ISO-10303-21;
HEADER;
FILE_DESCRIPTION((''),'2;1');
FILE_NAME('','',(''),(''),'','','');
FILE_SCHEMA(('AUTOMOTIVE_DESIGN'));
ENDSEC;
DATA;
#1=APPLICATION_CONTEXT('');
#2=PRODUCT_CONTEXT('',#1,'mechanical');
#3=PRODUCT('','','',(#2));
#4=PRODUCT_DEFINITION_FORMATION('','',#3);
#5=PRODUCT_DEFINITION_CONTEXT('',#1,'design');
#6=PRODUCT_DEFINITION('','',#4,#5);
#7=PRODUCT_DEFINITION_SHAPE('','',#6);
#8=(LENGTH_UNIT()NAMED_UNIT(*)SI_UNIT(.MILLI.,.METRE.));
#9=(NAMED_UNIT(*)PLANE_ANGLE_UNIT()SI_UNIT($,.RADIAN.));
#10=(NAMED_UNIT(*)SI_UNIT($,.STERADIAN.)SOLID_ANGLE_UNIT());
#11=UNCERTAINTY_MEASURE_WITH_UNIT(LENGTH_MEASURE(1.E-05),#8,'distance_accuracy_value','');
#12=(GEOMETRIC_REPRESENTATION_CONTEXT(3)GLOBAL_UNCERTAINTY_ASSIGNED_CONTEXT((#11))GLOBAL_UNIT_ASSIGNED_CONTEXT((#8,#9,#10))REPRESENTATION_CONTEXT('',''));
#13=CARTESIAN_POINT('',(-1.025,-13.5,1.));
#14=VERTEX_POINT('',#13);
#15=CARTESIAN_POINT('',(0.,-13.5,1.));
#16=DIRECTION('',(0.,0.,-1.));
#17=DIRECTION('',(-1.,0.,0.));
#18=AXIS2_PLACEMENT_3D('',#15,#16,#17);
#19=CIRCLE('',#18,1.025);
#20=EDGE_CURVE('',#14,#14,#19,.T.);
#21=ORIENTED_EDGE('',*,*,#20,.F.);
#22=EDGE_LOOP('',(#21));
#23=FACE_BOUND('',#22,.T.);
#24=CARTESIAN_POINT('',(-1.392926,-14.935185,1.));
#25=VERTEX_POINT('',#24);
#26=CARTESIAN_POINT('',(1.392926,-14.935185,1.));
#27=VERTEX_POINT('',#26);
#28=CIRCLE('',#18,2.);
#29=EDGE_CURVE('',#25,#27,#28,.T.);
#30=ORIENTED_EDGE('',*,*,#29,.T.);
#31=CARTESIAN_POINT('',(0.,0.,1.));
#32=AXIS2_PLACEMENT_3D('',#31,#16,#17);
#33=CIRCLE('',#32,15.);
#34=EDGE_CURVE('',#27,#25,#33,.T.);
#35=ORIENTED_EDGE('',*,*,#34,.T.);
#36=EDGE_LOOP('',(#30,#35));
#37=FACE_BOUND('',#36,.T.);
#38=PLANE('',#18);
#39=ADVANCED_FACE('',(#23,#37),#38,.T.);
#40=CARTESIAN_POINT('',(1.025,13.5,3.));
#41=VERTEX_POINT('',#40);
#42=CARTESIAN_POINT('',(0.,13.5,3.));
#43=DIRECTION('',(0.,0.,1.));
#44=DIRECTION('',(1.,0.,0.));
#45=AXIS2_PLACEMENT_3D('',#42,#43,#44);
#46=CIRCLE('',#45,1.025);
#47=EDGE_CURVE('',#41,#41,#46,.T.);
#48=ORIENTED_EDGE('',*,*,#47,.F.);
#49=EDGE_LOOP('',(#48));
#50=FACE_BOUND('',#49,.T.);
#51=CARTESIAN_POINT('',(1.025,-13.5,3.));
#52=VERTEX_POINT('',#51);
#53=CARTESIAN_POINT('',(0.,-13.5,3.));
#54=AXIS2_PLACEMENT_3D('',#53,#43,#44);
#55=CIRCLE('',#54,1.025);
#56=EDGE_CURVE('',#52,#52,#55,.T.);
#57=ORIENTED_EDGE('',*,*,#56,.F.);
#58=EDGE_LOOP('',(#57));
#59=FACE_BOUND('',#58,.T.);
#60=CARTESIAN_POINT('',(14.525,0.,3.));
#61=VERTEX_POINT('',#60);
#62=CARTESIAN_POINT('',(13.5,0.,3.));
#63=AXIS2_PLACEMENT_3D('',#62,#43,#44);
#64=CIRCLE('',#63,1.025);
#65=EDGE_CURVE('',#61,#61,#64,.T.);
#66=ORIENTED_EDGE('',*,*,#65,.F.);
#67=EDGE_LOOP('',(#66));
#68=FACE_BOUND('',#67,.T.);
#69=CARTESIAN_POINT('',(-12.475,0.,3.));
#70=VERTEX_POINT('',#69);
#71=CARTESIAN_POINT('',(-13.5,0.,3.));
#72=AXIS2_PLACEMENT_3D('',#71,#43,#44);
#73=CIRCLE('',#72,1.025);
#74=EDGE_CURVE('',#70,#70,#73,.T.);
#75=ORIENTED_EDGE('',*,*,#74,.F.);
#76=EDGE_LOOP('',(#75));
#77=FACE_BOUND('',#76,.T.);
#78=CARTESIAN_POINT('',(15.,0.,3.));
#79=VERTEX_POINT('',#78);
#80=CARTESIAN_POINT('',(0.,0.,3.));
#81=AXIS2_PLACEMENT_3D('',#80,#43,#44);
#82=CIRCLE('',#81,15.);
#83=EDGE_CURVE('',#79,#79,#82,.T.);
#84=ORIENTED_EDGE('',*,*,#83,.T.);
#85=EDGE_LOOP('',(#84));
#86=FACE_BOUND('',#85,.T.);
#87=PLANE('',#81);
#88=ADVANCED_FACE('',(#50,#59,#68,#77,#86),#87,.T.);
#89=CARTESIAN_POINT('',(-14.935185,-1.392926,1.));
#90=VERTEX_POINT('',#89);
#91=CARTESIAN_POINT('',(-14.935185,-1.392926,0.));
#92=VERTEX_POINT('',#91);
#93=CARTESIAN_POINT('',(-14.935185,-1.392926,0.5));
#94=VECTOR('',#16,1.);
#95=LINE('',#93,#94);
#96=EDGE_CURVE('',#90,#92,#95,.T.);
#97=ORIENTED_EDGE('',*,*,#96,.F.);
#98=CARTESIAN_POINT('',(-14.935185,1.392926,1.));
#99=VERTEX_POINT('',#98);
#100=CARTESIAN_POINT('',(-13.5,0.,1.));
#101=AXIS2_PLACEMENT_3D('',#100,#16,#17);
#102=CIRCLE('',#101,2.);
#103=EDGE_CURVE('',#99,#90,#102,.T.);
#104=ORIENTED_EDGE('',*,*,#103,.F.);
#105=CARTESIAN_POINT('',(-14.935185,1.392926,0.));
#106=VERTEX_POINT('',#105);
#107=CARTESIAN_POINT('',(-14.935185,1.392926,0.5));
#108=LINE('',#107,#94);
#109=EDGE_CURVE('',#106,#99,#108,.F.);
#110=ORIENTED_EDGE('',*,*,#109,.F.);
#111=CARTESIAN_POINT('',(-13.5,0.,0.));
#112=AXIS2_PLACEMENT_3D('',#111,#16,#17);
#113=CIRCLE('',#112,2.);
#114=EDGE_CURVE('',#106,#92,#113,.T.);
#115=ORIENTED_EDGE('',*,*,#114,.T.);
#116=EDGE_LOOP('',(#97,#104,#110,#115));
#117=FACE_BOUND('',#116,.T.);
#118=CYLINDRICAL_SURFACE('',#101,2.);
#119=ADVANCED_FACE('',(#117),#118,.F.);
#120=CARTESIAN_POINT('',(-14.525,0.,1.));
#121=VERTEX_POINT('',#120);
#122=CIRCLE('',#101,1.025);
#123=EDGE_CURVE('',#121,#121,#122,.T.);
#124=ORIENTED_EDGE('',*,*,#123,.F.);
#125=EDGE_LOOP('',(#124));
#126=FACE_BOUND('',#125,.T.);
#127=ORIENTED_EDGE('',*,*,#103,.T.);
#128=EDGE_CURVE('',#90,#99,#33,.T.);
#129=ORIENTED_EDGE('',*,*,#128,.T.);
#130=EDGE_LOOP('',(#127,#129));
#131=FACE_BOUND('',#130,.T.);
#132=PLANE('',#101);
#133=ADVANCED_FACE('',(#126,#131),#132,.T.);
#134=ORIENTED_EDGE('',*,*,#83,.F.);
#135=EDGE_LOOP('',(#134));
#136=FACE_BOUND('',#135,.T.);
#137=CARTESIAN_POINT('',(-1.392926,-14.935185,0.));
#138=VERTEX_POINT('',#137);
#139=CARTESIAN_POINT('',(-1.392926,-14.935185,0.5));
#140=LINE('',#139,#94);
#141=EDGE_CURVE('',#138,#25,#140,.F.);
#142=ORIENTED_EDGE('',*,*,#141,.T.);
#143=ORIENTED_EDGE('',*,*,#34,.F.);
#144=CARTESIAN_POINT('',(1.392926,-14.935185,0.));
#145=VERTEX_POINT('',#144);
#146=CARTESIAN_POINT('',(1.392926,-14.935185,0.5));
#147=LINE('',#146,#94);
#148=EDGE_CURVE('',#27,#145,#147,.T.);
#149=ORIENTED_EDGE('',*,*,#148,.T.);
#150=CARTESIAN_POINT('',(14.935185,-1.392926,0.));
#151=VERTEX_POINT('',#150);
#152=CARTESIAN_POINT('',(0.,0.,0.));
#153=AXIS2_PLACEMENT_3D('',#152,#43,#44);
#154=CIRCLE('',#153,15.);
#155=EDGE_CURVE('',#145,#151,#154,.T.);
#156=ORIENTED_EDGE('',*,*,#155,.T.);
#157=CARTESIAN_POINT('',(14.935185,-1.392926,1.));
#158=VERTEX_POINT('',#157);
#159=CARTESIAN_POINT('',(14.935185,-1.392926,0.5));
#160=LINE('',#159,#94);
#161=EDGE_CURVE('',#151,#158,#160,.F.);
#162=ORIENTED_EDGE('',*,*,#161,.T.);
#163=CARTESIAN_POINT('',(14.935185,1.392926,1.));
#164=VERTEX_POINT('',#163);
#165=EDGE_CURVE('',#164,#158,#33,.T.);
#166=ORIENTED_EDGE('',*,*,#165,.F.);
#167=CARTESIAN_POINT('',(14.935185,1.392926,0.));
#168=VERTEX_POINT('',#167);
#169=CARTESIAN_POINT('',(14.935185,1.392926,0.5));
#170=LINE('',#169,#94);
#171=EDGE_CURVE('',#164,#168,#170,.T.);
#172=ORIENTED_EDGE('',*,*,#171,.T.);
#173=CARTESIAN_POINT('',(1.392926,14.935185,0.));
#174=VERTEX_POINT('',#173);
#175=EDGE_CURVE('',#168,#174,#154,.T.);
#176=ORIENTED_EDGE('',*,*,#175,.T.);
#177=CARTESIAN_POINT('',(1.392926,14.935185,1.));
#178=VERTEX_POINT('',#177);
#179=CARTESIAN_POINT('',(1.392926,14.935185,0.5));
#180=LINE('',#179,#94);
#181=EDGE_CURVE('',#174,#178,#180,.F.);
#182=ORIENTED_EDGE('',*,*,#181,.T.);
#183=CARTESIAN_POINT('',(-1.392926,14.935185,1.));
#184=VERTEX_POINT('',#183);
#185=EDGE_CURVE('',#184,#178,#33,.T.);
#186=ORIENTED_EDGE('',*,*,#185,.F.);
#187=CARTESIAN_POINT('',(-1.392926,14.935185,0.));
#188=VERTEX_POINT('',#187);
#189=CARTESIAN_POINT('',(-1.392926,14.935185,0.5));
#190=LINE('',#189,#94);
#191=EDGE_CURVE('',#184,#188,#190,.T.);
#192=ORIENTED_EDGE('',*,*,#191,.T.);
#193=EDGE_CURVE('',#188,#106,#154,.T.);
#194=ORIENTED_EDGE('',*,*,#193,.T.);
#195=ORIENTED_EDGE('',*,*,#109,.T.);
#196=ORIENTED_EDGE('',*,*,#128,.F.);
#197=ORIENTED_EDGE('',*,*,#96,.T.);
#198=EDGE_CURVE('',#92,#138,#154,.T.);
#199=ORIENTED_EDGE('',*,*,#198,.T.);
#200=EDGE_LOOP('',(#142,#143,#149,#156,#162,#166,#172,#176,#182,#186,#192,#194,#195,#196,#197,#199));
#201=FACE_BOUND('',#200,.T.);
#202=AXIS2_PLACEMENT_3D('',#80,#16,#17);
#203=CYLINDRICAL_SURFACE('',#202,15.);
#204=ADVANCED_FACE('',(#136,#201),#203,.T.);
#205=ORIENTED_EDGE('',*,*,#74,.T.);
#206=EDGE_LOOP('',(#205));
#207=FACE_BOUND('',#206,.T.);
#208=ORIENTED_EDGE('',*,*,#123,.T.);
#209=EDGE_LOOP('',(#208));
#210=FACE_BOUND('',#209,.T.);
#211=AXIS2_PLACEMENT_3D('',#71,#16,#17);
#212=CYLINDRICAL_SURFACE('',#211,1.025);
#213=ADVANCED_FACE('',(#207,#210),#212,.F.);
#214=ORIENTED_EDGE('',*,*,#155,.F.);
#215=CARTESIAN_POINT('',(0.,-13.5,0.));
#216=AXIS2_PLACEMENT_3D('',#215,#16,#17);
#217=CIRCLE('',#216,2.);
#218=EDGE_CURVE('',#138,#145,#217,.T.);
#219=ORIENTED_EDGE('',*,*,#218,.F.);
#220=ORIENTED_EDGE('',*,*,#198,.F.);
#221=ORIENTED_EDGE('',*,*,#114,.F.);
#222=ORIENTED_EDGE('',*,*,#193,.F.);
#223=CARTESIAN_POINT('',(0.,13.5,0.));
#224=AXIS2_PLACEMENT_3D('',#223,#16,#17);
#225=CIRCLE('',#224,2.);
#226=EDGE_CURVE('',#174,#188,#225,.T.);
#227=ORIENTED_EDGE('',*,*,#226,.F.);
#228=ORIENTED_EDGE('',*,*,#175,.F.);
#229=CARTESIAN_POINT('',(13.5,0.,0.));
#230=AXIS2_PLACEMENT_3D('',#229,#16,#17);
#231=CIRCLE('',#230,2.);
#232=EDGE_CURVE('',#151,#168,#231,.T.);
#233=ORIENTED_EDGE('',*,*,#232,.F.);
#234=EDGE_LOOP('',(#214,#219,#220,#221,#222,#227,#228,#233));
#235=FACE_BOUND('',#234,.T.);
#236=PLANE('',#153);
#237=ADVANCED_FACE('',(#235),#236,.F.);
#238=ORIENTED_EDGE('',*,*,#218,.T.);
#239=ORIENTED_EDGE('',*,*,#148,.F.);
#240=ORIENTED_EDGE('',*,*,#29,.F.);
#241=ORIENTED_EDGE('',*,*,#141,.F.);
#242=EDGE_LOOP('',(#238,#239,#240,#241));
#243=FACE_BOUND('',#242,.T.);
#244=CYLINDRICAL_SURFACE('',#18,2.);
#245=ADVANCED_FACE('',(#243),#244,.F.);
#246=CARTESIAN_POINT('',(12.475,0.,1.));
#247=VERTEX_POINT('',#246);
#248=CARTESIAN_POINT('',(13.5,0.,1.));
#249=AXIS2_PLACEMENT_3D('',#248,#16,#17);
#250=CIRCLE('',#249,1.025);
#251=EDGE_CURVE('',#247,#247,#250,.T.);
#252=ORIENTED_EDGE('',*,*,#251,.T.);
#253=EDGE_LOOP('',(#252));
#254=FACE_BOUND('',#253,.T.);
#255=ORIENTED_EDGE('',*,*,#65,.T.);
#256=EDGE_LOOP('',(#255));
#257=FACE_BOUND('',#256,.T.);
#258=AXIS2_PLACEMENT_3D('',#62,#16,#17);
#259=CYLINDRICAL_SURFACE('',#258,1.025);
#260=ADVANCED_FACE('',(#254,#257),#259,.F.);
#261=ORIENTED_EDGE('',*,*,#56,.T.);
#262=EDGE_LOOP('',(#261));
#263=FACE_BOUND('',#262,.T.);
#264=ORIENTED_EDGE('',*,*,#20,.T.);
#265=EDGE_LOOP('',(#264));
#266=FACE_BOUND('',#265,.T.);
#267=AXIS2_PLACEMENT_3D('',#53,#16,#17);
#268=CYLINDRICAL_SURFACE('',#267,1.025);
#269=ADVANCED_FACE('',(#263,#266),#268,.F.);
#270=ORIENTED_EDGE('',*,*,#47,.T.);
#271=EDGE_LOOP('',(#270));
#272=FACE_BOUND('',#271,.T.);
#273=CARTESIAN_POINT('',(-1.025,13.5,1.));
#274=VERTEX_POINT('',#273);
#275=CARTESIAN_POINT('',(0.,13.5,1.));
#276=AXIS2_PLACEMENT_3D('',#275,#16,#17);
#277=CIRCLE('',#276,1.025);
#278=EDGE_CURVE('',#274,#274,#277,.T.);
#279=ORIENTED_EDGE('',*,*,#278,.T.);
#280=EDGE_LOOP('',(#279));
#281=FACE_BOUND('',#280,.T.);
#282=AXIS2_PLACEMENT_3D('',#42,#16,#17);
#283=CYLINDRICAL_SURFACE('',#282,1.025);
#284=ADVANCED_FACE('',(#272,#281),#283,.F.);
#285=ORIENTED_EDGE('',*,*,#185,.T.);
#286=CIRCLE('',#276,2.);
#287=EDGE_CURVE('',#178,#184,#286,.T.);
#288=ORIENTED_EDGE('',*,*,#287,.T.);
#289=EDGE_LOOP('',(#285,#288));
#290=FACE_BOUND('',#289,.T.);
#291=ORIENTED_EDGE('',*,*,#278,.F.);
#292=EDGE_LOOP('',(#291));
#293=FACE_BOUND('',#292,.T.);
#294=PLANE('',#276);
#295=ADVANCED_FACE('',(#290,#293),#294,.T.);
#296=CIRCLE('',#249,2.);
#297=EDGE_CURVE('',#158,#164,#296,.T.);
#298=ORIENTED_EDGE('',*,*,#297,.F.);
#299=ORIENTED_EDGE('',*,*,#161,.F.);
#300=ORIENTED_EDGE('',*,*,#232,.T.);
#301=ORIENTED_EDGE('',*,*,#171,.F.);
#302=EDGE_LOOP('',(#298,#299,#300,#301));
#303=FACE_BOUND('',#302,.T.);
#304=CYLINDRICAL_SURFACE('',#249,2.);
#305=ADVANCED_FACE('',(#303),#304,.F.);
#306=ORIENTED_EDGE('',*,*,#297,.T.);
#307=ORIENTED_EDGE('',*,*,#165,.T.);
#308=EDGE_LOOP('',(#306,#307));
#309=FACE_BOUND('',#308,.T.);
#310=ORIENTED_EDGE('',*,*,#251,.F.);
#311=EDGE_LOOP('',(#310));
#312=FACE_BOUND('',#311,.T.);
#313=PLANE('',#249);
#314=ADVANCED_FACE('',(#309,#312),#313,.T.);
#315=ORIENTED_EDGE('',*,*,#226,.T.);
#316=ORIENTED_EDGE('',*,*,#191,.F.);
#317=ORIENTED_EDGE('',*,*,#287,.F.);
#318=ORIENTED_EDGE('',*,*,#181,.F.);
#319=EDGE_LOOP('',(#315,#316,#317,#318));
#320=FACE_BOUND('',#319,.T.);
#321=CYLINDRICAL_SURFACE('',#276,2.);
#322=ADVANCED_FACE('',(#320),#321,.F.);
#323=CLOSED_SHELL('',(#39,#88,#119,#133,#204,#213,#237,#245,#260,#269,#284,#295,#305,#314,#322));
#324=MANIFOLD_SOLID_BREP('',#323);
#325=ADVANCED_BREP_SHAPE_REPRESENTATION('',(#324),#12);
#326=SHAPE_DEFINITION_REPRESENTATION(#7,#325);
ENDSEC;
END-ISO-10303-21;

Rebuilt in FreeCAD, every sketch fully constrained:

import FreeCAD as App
import Part
import Sketcher
from FreeCAD import Vector

doc = App.newDocument("Part")
body = doc.addObject("PartDesign::Body", "Body")

sketch1 = body.newObject("Sketcher::SketchObject", "Sketch")
sketch1.AttachmentSupport = (doc.getObject("XY_Plane"), [""])
sketch1.MapMode = "FlatFace"
sketch1.addGeometry(Part.Circle(Vector(0, 0, 0), Vector(0, 0, 1), 15), False)
sketch1.addConstraint([
    Sketcher.Constraint("Coincident", 0, 3, -1, 1),
    Sketcher.Constraint("Diameter", 0, 30.0),
])
pad1 = body.newObject("PartDesign::Pad", "Pad")
pad1.Profile = sketch1
pad1.Length = 3

sketch2 = body.newObject("Sketcher::SketchObject", "Sketch001")
sketch2.AttachmentSupport = (doc.getObject("XY_Plane"), [""])
sketch2.MapMode = "FlatFace"
sketch2.addGeometry([
    Part.Circle(Vector(0, 13.5, 0), Vector(0, 0, 1), 1),
    Part.Circle(Vector(13.5, 0, 0), Vector(0, 0, 1), 1),
    Part.Circle(Vector(0, -13.5, 0), Vector(0, 0, 1), 1),
    Part.Circle(Vector(-13.5, 0, 0), Vector(0, 0, 1), 1),
], False)
sketch2.addConstraint([
    Sketcher.Constraint("Equal", 0, 1),
    Sketcher.Constraint("Equal", 1, 2),
    Sketcher.Constraint("Equal", 2, 3),
    Sketcher.Constraint("Symmetric", 0, 3, 2, 3, -1, 1),
    Sketcher.Constraint("Symmetric", 1, 3, 3, 3, -1, 1),
    Sketcher.Constraint("PointOnObject", 0, 3, -2),
    Sketcher.Constraint("PointOnObject", 1, 3, -1),
    Sketcher.Constraint("Diameter", 0, 2.05),
    Sketcher.Constraint("DistanceY", 2, 3, 0, 3, 27.0),
    Sketcher.Constraint("DistanceX", 3, 3, 1, 3, 27.0),
])
pocket1 = body.newObject("PartDesign::Pocket", "Pocket")
pocket1.Profile = sketch2
pocket1.Type = "ThroughAll"
pocket1.Reversed = True

sketch3 = body.newObject("Sketcher::SketchObject", "Sketch002")
sketch3.AttachmentSupport = (doc.getObject("XY_Plane"), [""])
sketch3.MapMode = "FlatFace"
sketch3.addGeometry([
    Part.Circle(Vector(0, 13.5, 0), Vector(0, 0, 1), 2),
    Part.Circle(Vector(-13.5, 0, 0), Vector(0, 0, 1), 2),
    Part.Circle(Vector(13.5, 0, 0), Vector(0, 0, 1), 2),
    Part.Circle(Vector(0, -13.5, 0), Vector(0, 0, 1), 2),
], False)
sketch3.addConstraint([
    Sketcher.Constraint("Equal", 0, 1),
    Sketcher.Constraint("Equal", 1, 2),
    Sketcher.Constraint("Equal", 2, 3),
    Sketcher.Constraint("Symmetric", 1, 3, 2, 3, -1, 1),
    Sketcher.Constraint("Symmetric", 0, 3, 3, 3, -1, 1),
    Sketcher.Constraint("PointOnObject", 0, 3, -2),
    Sketcher.Constraint("PointOnObject", 1, 3, -1),
    Sketcher.Constraint("Diameter", 0, 4.0),
    Sketcher.Constraint("DistanceX", 1, 3, 2, 3, 27.0),
    Sketcher.Constraint("DistanceY", 3, 3, 0, 3, 27.0),
])
pocket2 = body.newObject("PartDesign::Pocket", "Pocket001")
pocket2.Profile = sketch3
pocket2.Length = 1
pocket2.Reversed = True

doc.recompute()
